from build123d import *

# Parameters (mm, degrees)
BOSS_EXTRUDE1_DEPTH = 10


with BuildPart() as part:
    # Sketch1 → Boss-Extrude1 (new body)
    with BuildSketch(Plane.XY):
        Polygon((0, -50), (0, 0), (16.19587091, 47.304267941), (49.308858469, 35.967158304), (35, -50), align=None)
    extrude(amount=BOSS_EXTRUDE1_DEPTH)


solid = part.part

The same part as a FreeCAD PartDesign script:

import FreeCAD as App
import Part
import Sketcher
Q = App.Units.Quantity

doc = App.newDocument("Part")
body = doc.addObject("PartDesign::Body", "Body")

# Sketch on XY plane
sketch1 = body.newObject("Sketcher::SketchObject", "Sketch")
sketch1.AttachmentSupport = (doc.getObject("XY_Plane"), [""])
sketch1.MapMode = "FlatFace"
sketch1.addGeometry([
    Part.LineSegment(App.Vector(0, 0, 0), App.Vector(0, -50, 0)),  # 0
    Part.LineSegment(App.Vector(0, -50, 0), App.Vector(35, -50, 0)),  # 1
    Part.LineSegment(App.Vector(35, -50, 0), App.Vector(49, 36, 0)),  # 2
    Part.LineSegment(App.Vector(49, 36, 0), App.Vector(16, 47, 0)),  # 3
    Part.LineSegment(App.Vector(16, 47, 0), App.Vector(0, 0, 0)),  # 4
], False)
sketch1.addConstraint([
    Sketcher.Constraint("Coincident", 0, 2, 1, 1),
    Sketcher.Constraint("Coincident", 1, 2, 2, 1),
    Sketcher.Constraint("Coincident", 2, 2, 3, 1),
    Sketcher.Constraint("Coincident", 3, 2, 4, 1),
    Sketcher.Constraint("Coincident", 4, 2, 0, 1),
    Sketcher.Constraint("Vertical", 0),
    Sketcher.Constraint("Horizontal", 1),
    Sketcher.Constraint("Coincident", 4, 2, -1, 1),
    Sketcher.Constraint("Perpendicular", 3, 4),
    Sketcher.Constraint("DistanceX", 1, 1, 1, 2, 35.0),
    Sketcher.Constraint("DistanceY", 0, 2, 0, 1, 50.0),
    Sketcher.Constraint("Distance", 3, 35.0),
    Sketcher.Constraint("Distance", 4, 50.0),
    Sketcher.Constraint("Angle", 3, Q("161.1 deg")),
])
pad1 = body.newObject("PartDesign::Pad", "Pad")
pad1.Profile = sketch1
pad1.Length = 10

doc.recompute()
